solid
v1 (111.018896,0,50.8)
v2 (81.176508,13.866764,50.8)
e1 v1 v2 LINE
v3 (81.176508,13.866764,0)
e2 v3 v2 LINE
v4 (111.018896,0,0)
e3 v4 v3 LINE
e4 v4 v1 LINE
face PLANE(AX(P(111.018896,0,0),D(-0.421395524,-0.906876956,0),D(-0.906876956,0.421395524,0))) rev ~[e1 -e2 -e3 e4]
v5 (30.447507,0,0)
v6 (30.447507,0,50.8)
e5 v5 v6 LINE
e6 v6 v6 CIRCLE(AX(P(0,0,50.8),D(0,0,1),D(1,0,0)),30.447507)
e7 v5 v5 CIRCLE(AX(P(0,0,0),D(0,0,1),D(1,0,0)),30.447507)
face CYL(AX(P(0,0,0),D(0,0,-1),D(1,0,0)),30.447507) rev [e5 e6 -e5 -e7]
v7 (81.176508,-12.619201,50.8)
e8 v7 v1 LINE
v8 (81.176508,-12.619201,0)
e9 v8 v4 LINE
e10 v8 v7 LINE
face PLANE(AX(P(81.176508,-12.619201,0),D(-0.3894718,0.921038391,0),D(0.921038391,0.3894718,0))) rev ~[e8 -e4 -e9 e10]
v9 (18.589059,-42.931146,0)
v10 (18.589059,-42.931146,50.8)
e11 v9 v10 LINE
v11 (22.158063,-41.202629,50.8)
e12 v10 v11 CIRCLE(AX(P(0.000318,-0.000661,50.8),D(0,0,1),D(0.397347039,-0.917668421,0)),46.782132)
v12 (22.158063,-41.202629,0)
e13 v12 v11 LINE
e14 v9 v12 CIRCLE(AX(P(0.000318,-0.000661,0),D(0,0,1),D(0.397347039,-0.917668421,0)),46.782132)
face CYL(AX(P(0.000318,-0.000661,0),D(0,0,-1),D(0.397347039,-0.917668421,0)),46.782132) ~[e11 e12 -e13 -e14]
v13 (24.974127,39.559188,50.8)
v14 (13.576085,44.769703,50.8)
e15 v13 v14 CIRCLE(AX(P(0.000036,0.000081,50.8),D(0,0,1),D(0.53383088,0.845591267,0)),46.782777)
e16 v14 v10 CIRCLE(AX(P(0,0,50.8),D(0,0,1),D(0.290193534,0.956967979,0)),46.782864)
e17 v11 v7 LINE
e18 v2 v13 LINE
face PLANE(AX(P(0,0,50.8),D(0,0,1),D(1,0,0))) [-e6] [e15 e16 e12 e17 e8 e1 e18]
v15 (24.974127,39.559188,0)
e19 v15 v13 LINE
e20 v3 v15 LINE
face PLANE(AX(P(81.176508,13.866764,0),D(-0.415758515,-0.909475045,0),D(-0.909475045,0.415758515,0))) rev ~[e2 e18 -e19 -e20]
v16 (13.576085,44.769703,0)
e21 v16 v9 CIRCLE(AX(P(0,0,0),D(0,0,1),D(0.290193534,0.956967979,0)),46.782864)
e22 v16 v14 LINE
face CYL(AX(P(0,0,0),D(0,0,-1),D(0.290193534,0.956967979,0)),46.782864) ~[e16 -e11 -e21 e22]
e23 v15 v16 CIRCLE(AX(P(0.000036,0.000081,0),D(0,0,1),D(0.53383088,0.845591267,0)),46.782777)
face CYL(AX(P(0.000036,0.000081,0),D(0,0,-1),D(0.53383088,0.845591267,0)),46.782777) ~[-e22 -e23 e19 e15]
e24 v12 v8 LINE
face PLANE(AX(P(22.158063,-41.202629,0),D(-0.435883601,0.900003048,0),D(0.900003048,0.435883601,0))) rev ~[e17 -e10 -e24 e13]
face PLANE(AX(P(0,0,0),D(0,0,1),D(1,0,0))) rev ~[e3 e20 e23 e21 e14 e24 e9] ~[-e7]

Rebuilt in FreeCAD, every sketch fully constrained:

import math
import FreeCAD as App
import Part
import Sketcher
Q = App.Units.Quantity

doc = App.newDocument("Part")
body = doc.addObject("PartDesign::Body", "Body")

# Sketch on XY plane
sketch1 = doc.addObject("Sketcher::SketchObject", "Sketch")
body.addObject(sketch1)
sketch1.AttachmentSupport = (doc.XY_Plane, [""])
sketch1.MapMode = "FlatFace"
sketch1.addGeometry([
    Part.LineSegment(App.Vector(81.176508, 13.866764, 0), App.Vector(24.974127, 39.559188, 0)),  # 0
    Part.ArcOfCircle(Part.Circle(App.Vector(0.000036, 0.000081, 0), App.Vector(0, 0, 1), 46.782777), math.radians(57.735341), math.radians(73.13047)),  # 1
    Part.ArcOfCircle(Part.Circle(App.Vector(0, 0, 0), App.Vector(0, 0, 1), 46.782864), math.radians(73.130457), math.radians(293.412468)),  # 2
    Part.ArcOfCircle(Part.Circle(App.Vector(0.000318, -0.000661, 0), App.Vector(0, 0, 1), 46.782132), math.radians(-66.587567), math.radians(-61.729362)),  # 3
    Part.LineSegment(App.Vector(22.158063, -41.202629, 0), App.Vector(81.176508, -12.619201, 0)),  # 4
    Part.LineSegment(App.Vector(81.176508, -12.619201, 0), App.Vector(111.018896, 0, 0)),  # 5
    Part.LineSegment(App.Vector(111.018896, 0, 0), App.Vector(81.176508, 13.866764, 0)),  # 6
    Part.Circle(App.Vector(0, 0, 0), App.Vector(0, 0, 1), 30.447507),  # 7
], False)
sketch1.addConstraint([
    Sketcher.Constraint("Coincident", 0, 2, 1, 1),
    Sketcher.Constraint("Coincident", 1, 2, 2, 1),
    Sketcher.Constraint("Coincident", 2, 2, 3, 1),
    Sketcher.Constraint("Coincident", 3, 2, 4, 1),
    Sketcher.Constraint("Coincident", 4, 2, 5, 1),
    Sketcher.Constraint("Coincident", 5, 2, 6, 1),
    Sketcher.Constraint("Coincident", 6, 2, 0, 1),
    Sketcher.Constraint("Coincident", 2, 3, -1, 1),
    Sketcher.Constraint("Coincident", 7, 3, -1, 1),
    Sketcher.Constraint("PointOnObject", 5, 2, -1),
    Sketcher.Constraint("Radius", 3, 46.782132),
    Sketcher.Constraint("Diameter", 7, 60.895014),
    Sketcher.Constraint("Radius", 1, 46.782777),
    Sketcher.Constraint("Radius", 2, 46.782864),
    Sketcher.Constraint("DistanceY", 4, 2, -1, 1, 12.619201),
    Sketcher.Constraint("DistanceY", 3, 3, -1, 1, 0.000661),
    Sketcher.Constraint("DistanceX", -1, 1, 2, 2, 18.589059),
    Sketcher.Constraint("DistanceY", 3, 2, -1, 1, 41.202629),
    Sketcher.Constraint("DistanceX", -1, 1, 4, 2, 81.176508),
    Sketcher.Constraint("DistanceX", -1, 1, 6, 2, 81.176508),
    Sketcher.Constraint("DistanceX", 1, 3, 3, 3, 0.000281),
    Sketcher.Constraint("DistanceX", 1, 3, 0, 2, 24.974091),
    Sketcher.Constraint("DistanceX", 1, 3, 1, 2, 13.576049),
    Sketcher.Constraint("DistanceX", 0, 2, 5, 2, 86.044769),
    Sketcher.Constraint("DistanceY", 6, 2, 1, 2, 30.902939),
])
pad1 = doc.addObject("PartDesign::Pad", "Pad")
body.addObject(pad1)
pad1.Profile = sketch1
pad1.Length = Q("2 in")

doc.recompute()
